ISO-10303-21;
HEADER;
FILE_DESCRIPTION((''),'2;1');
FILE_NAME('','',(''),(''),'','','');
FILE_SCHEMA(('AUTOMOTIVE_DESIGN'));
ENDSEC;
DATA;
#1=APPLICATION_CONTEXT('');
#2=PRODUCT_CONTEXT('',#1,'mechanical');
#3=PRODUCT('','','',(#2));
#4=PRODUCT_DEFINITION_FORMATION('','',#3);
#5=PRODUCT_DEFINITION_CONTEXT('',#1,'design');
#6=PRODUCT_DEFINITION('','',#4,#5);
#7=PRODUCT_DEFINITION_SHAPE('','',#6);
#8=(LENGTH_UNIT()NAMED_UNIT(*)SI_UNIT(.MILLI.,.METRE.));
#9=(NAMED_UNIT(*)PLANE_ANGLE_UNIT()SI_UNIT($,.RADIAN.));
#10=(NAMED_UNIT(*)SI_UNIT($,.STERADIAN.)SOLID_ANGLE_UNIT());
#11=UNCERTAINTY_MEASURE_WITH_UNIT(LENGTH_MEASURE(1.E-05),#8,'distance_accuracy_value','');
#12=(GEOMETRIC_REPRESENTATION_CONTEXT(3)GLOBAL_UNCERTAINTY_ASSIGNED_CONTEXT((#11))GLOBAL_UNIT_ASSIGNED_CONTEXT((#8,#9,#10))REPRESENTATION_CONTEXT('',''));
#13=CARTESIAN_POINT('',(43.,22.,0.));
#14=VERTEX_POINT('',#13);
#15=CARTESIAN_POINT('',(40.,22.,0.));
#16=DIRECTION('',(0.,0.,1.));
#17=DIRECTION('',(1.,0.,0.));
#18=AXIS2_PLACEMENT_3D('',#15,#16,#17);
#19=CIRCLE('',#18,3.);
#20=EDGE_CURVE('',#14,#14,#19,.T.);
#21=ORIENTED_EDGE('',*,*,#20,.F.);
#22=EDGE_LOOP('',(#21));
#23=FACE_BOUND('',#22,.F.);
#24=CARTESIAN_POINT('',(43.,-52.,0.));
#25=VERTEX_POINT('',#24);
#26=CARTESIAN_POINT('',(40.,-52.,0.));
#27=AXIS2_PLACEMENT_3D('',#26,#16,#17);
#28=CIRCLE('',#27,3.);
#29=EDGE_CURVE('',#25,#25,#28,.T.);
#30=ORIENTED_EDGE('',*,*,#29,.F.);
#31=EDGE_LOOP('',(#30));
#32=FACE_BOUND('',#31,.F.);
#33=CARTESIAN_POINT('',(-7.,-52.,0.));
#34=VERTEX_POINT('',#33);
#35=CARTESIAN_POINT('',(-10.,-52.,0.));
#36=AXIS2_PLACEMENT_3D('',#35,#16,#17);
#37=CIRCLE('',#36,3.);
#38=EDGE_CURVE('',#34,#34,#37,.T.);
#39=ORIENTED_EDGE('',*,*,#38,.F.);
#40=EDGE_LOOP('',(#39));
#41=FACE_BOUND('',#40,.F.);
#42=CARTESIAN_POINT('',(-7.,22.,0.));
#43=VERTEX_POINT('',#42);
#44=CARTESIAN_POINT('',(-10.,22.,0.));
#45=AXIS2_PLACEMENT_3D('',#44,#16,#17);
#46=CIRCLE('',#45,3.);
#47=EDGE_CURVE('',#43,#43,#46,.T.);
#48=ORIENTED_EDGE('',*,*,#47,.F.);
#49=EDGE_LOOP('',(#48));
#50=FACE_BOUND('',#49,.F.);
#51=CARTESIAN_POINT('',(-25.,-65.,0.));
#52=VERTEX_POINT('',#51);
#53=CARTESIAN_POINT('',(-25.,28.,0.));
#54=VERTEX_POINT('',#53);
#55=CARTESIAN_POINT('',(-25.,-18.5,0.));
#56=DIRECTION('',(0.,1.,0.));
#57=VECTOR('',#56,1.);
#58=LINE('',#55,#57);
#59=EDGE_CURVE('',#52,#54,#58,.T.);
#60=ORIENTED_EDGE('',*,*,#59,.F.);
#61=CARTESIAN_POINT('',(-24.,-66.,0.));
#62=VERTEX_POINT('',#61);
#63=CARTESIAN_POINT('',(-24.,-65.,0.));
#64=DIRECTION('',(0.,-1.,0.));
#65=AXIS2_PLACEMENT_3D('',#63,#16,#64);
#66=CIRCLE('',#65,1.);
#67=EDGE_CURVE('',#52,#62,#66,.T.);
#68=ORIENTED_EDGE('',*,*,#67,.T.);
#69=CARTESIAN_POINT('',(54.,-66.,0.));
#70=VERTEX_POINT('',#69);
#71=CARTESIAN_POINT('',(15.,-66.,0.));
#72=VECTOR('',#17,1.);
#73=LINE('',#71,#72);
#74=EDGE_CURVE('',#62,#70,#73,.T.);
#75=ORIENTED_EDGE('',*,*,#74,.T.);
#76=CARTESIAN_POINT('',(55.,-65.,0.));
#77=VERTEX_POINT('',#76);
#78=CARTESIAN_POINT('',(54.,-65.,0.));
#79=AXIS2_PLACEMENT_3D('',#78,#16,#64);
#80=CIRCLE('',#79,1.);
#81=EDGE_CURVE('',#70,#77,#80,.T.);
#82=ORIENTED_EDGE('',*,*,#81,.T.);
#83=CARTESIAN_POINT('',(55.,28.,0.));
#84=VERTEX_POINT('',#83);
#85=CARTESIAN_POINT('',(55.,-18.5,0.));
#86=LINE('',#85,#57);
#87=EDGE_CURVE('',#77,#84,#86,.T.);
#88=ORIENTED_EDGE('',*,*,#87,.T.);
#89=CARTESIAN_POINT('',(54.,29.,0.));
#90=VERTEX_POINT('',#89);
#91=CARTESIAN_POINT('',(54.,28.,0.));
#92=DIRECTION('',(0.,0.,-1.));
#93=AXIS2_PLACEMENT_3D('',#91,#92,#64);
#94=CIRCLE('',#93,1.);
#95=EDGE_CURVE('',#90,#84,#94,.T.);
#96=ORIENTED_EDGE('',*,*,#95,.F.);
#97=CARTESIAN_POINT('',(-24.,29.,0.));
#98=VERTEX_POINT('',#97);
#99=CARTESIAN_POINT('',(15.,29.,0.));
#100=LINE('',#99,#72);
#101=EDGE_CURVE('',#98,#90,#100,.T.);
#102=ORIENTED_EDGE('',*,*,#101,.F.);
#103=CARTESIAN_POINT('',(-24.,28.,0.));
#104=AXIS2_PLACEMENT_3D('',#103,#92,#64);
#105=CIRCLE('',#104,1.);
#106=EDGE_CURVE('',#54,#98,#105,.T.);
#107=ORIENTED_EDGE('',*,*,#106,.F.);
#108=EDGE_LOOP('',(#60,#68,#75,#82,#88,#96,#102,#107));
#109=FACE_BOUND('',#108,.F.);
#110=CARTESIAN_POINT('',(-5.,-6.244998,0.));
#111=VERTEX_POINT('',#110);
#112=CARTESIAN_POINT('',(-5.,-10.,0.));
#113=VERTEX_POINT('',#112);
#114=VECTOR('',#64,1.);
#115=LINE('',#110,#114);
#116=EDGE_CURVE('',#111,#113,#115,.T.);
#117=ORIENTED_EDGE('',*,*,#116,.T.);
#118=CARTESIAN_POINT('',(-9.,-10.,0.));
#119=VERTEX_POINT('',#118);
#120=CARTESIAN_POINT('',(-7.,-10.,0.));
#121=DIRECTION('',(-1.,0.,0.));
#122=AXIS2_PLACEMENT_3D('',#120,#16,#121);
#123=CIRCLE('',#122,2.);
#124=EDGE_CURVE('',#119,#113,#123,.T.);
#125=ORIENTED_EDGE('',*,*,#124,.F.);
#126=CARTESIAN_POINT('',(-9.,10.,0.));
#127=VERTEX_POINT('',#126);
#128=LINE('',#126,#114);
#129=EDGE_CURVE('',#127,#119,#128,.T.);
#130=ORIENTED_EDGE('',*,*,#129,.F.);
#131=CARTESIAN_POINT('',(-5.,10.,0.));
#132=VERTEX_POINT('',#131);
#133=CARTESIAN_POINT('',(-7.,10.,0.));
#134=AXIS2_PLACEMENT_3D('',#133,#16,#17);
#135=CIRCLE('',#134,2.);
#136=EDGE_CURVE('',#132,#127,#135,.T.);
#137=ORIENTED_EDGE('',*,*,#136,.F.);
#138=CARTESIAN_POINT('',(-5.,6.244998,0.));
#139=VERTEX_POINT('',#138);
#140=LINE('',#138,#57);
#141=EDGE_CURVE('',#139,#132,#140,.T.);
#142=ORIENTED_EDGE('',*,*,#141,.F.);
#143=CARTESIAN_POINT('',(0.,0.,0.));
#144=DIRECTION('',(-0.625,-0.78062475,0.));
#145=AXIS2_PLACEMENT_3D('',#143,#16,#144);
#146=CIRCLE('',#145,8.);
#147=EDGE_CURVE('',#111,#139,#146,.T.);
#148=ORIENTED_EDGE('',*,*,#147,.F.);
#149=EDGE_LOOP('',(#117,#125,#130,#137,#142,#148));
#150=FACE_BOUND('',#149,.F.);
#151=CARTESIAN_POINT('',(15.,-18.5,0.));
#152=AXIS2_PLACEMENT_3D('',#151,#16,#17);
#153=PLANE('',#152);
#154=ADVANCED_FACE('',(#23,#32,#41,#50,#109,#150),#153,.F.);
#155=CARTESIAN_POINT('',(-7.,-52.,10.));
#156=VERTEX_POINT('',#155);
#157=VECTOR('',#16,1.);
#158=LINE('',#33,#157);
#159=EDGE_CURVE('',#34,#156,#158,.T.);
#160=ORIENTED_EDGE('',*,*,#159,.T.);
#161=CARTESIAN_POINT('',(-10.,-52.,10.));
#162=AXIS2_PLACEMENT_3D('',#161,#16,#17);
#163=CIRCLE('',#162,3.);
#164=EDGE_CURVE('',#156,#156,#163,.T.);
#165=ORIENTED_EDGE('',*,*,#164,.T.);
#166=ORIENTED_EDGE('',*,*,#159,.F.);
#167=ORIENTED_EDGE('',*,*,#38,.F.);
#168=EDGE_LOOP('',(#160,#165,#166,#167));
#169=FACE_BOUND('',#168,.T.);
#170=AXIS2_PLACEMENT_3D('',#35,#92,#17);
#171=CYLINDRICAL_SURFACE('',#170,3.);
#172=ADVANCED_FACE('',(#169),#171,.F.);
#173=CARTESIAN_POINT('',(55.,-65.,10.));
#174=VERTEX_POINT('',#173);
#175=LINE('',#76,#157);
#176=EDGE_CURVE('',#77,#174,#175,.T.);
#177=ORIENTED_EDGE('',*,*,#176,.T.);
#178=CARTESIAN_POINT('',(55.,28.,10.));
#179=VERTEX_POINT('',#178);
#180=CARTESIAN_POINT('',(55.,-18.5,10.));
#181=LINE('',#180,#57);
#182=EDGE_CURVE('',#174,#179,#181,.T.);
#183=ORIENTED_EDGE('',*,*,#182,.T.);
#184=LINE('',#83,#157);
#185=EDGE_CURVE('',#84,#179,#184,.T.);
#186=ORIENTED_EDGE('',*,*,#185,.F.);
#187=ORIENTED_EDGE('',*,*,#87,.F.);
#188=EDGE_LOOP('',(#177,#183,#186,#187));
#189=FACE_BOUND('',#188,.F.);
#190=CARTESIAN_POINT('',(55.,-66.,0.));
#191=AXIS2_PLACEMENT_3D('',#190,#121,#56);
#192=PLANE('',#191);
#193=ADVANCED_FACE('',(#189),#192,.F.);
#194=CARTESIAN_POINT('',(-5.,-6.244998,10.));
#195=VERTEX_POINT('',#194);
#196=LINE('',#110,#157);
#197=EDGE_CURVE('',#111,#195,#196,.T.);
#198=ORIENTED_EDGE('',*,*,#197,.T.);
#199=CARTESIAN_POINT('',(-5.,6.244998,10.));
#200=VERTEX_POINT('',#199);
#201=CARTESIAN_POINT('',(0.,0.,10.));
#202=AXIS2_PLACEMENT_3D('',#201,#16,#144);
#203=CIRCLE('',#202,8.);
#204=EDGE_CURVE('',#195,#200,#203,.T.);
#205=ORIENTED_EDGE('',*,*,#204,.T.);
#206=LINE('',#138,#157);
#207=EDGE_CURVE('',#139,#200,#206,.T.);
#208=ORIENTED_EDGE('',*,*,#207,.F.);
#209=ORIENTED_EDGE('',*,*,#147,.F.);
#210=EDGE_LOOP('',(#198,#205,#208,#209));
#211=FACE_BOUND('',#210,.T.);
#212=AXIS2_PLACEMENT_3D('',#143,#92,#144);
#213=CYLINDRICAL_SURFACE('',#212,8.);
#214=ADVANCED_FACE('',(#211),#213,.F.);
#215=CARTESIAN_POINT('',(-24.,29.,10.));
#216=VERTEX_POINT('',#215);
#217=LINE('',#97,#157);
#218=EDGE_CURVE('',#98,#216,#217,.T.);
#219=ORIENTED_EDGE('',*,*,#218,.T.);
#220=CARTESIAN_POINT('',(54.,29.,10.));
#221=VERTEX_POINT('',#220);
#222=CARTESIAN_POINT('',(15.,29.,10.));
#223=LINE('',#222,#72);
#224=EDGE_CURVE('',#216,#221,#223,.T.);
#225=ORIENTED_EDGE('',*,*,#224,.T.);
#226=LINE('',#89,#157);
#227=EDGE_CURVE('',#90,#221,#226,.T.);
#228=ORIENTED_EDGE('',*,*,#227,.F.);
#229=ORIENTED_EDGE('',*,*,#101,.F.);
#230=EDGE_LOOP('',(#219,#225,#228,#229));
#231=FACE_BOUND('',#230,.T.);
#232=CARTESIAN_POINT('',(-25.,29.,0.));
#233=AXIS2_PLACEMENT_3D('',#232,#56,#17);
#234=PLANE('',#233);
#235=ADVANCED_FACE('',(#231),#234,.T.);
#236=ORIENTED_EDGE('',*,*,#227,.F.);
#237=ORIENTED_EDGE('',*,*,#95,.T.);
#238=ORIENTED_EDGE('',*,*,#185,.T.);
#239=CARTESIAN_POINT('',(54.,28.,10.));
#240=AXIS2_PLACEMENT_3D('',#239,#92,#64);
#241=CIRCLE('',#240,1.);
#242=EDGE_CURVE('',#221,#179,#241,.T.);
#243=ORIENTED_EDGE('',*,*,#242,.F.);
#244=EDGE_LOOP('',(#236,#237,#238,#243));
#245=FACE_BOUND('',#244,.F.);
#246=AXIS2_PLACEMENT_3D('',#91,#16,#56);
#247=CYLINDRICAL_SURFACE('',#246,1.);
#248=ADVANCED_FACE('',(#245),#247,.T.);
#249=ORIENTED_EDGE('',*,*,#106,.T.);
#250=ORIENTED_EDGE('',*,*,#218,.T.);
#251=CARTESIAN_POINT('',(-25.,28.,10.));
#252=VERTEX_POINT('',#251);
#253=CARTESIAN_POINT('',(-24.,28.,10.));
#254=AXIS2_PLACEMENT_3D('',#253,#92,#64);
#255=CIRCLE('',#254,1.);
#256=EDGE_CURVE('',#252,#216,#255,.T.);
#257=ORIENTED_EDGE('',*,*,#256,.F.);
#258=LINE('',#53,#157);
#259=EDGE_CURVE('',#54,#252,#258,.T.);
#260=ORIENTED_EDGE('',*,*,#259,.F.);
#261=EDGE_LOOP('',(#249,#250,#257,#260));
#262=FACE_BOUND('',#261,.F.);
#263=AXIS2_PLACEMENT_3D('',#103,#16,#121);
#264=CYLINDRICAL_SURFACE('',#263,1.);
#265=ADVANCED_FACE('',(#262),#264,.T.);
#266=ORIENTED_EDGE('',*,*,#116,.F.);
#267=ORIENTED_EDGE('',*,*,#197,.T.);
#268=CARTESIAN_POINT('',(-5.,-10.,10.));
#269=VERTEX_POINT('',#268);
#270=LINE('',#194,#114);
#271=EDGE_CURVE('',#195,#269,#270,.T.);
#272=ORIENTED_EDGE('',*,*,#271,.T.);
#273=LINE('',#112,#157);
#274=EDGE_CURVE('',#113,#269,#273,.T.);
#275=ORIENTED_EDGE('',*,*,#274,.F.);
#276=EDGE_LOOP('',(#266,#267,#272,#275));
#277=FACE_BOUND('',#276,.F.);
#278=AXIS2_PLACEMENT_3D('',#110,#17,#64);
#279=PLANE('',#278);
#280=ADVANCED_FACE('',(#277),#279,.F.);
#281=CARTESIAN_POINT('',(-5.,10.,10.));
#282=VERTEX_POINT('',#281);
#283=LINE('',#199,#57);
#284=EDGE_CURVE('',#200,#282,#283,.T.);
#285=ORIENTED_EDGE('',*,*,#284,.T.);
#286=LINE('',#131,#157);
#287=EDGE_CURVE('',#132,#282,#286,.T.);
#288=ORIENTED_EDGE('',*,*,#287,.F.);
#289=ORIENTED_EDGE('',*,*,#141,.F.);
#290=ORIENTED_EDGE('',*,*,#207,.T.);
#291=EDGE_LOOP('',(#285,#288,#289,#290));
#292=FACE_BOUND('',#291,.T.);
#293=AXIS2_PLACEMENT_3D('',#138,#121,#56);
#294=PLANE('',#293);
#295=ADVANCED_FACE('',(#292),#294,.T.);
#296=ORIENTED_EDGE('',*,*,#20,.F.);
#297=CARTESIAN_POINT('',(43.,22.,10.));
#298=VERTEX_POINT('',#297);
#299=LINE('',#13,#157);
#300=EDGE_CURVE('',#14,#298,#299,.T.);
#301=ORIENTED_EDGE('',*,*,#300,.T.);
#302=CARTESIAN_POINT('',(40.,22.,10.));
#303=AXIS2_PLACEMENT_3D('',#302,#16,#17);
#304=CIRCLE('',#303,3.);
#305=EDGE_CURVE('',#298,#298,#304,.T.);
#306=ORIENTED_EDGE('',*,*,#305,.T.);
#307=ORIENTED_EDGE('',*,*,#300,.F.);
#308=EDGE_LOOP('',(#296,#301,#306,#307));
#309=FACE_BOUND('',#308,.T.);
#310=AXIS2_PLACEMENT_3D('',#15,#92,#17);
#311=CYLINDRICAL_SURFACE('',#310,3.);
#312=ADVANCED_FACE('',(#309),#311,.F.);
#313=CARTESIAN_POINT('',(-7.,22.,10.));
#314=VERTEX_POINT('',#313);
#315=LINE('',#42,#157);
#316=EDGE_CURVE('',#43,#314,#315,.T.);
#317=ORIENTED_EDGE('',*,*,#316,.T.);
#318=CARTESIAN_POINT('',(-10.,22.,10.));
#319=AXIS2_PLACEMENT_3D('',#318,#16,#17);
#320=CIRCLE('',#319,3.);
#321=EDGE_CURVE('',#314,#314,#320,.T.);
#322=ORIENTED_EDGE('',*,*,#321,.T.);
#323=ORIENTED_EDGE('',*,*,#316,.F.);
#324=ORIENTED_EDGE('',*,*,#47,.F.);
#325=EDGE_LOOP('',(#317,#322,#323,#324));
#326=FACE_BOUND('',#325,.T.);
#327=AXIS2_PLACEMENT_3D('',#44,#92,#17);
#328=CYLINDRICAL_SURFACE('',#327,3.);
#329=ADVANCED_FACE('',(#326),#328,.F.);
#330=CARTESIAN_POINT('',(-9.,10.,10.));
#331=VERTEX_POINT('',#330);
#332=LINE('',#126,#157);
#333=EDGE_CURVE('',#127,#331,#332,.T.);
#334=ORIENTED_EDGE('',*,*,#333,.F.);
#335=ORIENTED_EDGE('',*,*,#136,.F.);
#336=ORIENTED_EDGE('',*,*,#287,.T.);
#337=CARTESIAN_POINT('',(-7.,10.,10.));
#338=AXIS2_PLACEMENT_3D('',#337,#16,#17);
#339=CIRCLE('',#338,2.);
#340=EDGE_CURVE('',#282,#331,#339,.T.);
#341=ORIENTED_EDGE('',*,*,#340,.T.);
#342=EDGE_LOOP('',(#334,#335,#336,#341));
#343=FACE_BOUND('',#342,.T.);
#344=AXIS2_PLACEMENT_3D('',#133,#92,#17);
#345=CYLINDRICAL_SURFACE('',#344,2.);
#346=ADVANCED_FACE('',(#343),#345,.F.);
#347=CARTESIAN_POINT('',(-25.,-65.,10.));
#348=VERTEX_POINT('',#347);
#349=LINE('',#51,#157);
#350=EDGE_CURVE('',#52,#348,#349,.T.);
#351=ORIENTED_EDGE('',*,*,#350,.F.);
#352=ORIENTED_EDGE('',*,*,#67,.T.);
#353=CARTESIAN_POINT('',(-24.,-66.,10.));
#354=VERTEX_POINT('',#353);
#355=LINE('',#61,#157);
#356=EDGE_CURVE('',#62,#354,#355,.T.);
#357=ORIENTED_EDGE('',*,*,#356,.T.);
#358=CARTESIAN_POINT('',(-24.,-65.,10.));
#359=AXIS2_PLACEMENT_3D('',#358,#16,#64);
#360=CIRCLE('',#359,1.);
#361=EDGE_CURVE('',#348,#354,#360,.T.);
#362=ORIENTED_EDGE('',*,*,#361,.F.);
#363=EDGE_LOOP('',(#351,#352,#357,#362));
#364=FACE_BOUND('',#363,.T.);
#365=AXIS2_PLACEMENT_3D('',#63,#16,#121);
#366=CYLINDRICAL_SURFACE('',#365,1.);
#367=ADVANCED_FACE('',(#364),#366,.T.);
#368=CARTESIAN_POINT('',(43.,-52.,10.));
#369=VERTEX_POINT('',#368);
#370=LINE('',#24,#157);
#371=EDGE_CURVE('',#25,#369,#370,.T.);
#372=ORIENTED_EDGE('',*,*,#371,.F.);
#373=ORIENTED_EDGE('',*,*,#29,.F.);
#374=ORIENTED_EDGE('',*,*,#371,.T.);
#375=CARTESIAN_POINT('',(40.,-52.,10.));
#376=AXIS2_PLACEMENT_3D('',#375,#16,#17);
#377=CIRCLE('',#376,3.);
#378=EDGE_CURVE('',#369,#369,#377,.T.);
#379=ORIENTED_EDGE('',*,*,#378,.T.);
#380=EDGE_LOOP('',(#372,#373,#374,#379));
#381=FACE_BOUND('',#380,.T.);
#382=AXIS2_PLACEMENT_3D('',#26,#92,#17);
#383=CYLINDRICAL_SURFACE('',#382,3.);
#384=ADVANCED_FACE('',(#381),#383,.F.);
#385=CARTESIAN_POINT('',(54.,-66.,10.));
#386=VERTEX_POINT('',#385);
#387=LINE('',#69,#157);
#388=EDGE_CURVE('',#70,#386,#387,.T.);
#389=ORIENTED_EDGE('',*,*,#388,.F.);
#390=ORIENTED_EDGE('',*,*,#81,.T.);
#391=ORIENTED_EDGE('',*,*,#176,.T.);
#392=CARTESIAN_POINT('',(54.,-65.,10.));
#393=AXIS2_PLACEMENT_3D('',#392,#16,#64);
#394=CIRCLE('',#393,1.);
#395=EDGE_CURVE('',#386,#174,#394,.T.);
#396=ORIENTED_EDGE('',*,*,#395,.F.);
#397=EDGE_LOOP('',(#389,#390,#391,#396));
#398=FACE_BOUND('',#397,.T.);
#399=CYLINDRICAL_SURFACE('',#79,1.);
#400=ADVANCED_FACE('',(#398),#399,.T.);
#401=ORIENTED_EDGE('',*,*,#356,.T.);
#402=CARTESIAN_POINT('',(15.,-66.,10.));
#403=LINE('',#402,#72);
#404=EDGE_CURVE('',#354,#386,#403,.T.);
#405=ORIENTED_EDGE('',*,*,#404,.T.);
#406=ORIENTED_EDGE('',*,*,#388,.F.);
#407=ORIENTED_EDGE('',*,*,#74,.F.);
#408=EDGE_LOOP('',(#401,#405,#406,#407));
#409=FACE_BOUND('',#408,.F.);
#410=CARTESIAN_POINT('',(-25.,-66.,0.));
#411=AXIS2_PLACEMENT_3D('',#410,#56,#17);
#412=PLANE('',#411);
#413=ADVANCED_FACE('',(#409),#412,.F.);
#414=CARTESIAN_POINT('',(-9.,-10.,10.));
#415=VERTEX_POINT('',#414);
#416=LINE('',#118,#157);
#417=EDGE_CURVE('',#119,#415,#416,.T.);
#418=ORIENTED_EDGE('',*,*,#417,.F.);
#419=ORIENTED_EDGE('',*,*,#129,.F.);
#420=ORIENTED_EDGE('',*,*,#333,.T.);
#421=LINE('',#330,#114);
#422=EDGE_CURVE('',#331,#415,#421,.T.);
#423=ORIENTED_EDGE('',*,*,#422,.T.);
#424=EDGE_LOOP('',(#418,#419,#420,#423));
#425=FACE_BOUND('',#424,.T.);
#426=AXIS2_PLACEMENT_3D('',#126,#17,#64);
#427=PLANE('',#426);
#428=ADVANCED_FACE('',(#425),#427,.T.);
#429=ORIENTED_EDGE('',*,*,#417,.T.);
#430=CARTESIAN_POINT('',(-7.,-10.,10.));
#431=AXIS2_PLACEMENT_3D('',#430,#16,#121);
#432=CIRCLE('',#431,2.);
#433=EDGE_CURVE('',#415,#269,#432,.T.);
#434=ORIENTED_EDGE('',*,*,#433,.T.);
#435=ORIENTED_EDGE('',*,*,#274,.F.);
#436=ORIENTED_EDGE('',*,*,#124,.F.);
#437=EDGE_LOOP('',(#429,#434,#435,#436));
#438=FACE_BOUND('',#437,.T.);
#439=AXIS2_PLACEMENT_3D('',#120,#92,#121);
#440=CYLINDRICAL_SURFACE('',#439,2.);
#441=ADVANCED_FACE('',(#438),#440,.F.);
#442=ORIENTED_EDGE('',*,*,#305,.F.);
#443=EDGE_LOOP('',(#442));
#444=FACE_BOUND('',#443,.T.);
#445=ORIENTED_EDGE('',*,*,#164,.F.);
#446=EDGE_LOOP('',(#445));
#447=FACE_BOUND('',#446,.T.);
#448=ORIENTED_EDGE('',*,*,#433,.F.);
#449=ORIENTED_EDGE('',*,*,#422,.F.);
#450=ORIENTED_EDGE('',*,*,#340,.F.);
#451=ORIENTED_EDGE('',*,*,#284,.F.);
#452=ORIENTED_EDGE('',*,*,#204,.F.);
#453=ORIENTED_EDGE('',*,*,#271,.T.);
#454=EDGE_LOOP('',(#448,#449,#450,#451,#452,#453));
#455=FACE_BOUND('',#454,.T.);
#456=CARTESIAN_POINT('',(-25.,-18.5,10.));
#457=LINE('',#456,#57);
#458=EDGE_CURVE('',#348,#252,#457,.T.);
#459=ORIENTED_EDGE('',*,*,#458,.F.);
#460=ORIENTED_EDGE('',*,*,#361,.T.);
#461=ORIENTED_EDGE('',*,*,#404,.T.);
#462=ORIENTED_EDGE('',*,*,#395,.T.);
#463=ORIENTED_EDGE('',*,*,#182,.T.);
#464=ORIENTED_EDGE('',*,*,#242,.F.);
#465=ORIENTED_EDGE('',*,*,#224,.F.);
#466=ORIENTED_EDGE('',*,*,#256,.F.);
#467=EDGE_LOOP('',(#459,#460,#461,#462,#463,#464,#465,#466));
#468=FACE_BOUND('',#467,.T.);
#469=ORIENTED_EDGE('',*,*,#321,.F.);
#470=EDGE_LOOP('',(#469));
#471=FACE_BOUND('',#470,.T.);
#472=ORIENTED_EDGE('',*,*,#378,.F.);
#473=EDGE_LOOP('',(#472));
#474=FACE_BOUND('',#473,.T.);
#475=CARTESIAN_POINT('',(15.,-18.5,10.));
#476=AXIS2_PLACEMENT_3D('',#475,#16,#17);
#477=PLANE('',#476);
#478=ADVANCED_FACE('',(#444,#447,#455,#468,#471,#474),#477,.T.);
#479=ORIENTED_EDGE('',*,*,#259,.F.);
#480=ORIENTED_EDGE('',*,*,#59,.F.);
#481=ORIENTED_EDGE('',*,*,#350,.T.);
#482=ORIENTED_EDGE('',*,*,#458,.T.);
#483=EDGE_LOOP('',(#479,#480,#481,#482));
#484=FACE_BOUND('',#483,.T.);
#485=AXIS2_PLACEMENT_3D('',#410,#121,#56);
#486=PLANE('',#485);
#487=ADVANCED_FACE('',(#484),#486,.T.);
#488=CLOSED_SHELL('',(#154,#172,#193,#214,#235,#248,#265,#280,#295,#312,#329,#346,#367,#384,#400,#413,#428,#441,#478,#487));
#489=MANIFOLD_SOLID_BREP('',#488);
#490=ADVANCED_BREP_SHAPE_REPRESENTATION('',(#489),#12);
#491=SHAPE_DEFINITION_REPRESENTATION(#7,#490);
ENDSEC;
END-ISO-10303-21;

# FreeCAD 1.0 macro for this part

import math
import FreeCAD as App
import Part
import Sketcher
from FreeCAD import Vector


def edges_at(feature, points):
    """Names of the edges that pass closest to the given points."""
    edges = feature.Shape.Edges
    near = lambda p: min(range(len(edges)), key=lambda i: edges[i].distToShape(Part.Vertex(*p))[0])
    return sorted({f"Edge{near(p) + 1}" for p in points})

doc = App.newDocument("Part")
body = doc.addObject("PartDesign::Body", "Body")

sketch1 = body.newObject("Sketcher::SketchObject", "Sketch")
sketch1.AttachmentSupport = (doc.getObject("XY_Plane"), [""])
sketch1.MapMode = "FlatFace"
sketch1.addGeometry([
    Part.LineSegment(Vector(-25, 29, 0), Vector(-25, -66, 0)),
    Part.LineSegment(Vector(-25, -66, 0), Vector(55, -66, 0)),
    Part.LineSegment(Vector(55, -66, 0), Vector(55, 29, 0)),
    Part.LineSegment(Vector(55, 29, 0), Vector(-25, 29, 0)),
    Part.Circle(Vector(-10, -52, 0), Vector(0, 0, 1), 3),
    Part.Circle(Vector(40, -52, 0), Vector(0, 0, 1), 3),
    Part.ArcOfCircle(Part.Circle(Vector(0, 0, 0), Vector(0, 0, 1), 8), math.radians(-129), math.radians(129)),
    Part.LineSegment(Vector(-5, -6.2, 0), Vector(-5, -10, 0)),
    Part.ArcOfCircle(Part.Circle(Vector(-7, -10, 0), Vector(0, 0, 1), 2), math.radians(180), math.radians(360)),
    Part.LineSegment(Vector(-9, -10, 0), Vector(-9, 10, 0)),
    Part.ArcOfCircle(Part.Circle(Vector(-7, 10, 0), Vector(0, 0, 1), 2), math.radians(0), math.radians(180)),
    Part.LineSegment(Vector(-5, 10, 0), Vector(-5, 6.2, 0)),
    Part.Circle(Vector(-10, 22, 0), Vector(0, 0, 1), 3),
    Part.Circle(Vector(40, 22, 0), Vector(0, 0, 1), 3),
], False)
sketch1.addConstraint([
    Sketcher.Constraint("Coincident", 0, 2, 1, 1),
    Sketcher.Constraint("Coincident", 1, 2, 2, 1),
    Sketcher.Constraint("Coincident", 2, 2, 3, 1),
    Sketcher.Constraint("Coincident", 3, 2, 0, 1),
    Sketcher.Constraint("Coincident", 6, 1, 7, 1),
    Sketcher.Constraint("Tangent", 7, 2, 8, 2),
    Sketcher.Constraint("Tangent", 8, 1, 9, 1),
    Sketcher.Constraint("Tangent", 9, 2, 10, 2),
    Sketcher.Constraint("Tangent", 10, 1, 11, 1),
    Sketcher.Constraint("Coincident", 11, 2, 6, 2),
    Sketcher.Constraint("Vertical", 0),
    Sketcher.Constraint("Horizontal", 1),
    Sketcher.Constraint("Vertical", 2),
    Sketcher.Constraint("Horizontal", 3),
    Sketcher.Constraint("Vertical", 7),
    Sketcher.Constraint("Vertical", 9),
    Sketcher.Constraint("Vertical", 11),
    Sketcher.Constraint("Coincident", 6, 3, -1, 1),
    Sketcher.Constraint("Equal", 4, 5),
    Sketcher.Constraint("Equal", 8, 10),
    Sketcher.Constraint("Equal", 5, 12),
    Sketcher.Constraint("Equal", 12, 13),
    Sketcher.Constraint("Horizontal", 4, 3, 5, 3),
    Sketcher.Constraint("Horizontal", 12, 3, 13, 3),
    Sketcher.Constraint("Vertical", 4, 3, 12, 3),
    Sketcher.Constraint("Vertical", 5, 3, 13, 3),
    Sketcher.Constraint("Equal", 7, 11),
    Sketcher.Constraint("Diameter", 4, 6.0),
    Sketcher.Constraint("Radius", 6, 8.0),
    Sketcher.Constraint("Radius", 8, 2.0),
    Sketcher.Constraint("DistanceX", 1, 1, 1, 2, 80.0),
    Sketcher.Constraint("DistanceY", 0, 2, 0, 1, 95.0),
    Sketcher.Constraint("DistanceY", 9, 1, 9, 2, 20.0),
    Sketcher.Constraint("DistanceX", 4, 3, -1, 1, 10.0),
    Sketcher.Constraint("DistanceY", 4, 3, -1, 1, 52.0),
    Sketcher.Constraint("DistanceX", -1, 1, 5, 3, 40.0),
    Sketcher.Constraint("DistanceX", 8, 3, -1, 1, 7.0),
    Sketcher.Constraint("DistanceY", -1, 1, 12, 3, 22.0),
    Sketcher.Constraint("DistanceX", 0, 2, -1, 1, 25.0),
    Sketcher.Constraint("DistanceY", 0, 2, -1, 1, 66.0),
])
pad1 = body.newObject("PartDesign::Pad", "Pad")
pad1.Profile = sketch1
pad1.Length = 10
doc.recompute()

fillet = body.newObject("PartDesign::Fillet", "Fillet")
fillet.Base = (pad1, edges_at(pad1, [(-25, -66, 5), (-25, 29, 5)]))
fillet.Radius = 1
doc.recompute()

fillet2 = body.newObject("PartDesign::Fillet", "Fillet001")
fillet2.Base = (fillet, edges_at(fillet, [(55, -66, 5), (55, 29, 5)]))
fillet2.Radius = 1

doc.recompute()
